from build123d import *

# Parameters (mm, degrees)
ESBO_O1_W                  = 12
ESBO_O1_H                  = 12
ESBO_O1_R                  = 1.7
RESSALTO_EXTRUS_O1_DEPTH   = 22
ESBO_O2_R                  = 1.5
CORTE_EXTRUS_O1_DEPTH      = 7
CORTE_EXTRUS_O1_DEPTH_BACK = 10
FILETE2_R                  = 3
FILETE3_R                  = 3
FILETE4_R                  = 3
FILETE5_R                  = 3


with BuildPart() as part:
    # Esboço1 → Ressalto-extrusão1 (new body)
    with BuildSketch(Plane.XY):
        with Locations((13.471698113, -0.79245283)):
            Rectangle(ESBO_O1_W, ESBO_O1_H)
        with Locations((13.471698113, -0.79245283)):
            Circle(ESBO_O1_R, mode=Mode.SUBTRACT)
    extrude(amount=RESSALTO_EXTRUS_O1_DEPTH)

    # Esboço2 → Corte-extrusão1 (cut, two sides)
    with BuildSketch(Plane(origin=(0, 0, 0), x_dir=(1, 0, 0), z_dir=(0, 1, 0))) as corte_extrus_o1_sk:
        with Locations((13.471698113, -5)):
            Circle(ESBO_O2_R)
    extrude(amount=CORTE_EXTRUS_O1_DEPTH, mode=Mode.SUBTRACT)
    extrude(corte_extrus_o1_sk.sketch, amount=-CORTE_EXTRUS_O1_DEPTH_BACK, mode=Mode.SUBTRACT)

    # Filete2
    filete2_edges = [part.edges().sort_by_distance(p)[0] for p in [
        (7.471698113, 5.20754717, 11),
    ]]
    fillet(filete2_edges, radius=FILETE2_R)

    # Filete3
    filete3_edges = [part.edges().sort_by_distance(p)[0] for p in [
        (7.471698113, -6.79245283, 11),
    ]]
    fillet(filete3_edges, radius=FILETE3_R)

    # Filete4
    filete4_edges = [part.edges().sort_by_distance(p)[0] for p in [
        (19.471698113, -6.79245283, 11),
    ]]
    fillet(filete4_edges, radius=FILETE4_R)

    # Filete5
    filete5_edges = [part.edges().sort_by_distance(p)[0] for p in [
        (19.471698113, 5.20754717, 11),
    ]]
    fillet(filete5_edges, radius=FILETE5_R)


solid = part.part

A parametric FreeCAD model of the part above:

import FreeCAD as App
import Part
import Sketcher


def edges_at(feature, points):
    """Names of the edges that pass closest to the given points."""
    edges = feature.Shape.Edges
    near = lambda p: min(range(len(edges)), key=lambda i: edges[i].distToShape(Part.Vertex(*p))[0])
    return sorted({f"Edge{near(p) + 1}" for p in points})


def add_polygon(sketch, points):
    """Adds a closed chain of lines whose ends are joined by coincident constraints."""
    first, n = sketch.GeometryCount, len(points)
    for a, b in zip(points, points[1:] + points[:1]):
        sketch.addGeometry(Part.LineSegment(App.Vector(*a, 0), App.Vector(*b, 0)), False)
    for i in range(n):
        sketch.addConstraint(Sketcher.Constraint("Coincident", first + i, 2, first + (i + 1) % n, 1))

doc = App.newDocument("Part")
body = doc.addObject("PartDesign::Body", "Body")

sketch1 = body.newObject("Sketcher::SketchObject", "Sketch")
sketch1.AttachmentSupport = (doc.getObject("XY_Plane"), [""])
sketch1.MapMode = "FlatFace"
add_polygon(sketch1, [(7.5, 5.2), (7.5, -6.8), (19.5, -6.8), (19.5, 5.2)])
sketch1.addGeometry(Part.Circle(App.Vector(13.5, -0.8, 0), App.Vector(0, 0, 1), 1.7), False)
sketch1.addConstraint(Sketcher.Constraint("Vertical", 0))
sketch1.addConstraint(Sketcher.Constraint("Horizontal", 1))
sketch1.addConstraint(Sketcher.Constraint("Vertical", 2))
sketch1.addConstraint(Sketcher.Constraint("Horizontal", 3))
sketch1.addConstraint(Sketcher.Constraint("Equal", 3, 0))
sketch1.addConstraint(Sketcher.Constraint("Diameter", 4, 3.4))
sketch1.addConstraint(Sketcher.Constraint("DistanceX", 1, 1, 1, 2, 12.0))
sketch1.addConstraint(Sketcher.Constraint("DistanceX", 0, 2, 4, 3, 6.0))
sketch1.addConstraint(Sketcher.Constraint("DistanceY", 0, 2, 4, 3, 6.0))
sketch1.addConstraint(Sketcher.Constraint("DistanceX", -1, 1, 4, 3, 13.471698))
sketch1.addConstraint(Sketcher.Constraint("DistanceY", 4, 3, -1, 1, 0.792453))
pad1 = body.newObject("PartDesign::Pad", "Pad")
pad1.Profile = sketch1
pad1.Length = 22

sketch2 = body.newObject("Sketcher::SketchObject", "Sketch001")
sketch2.AttachmentSupport = (doc.getObject("XZ_Plane"), [""])
sketch2.MapMode = "FlatFace"
sketch2.addGeometry(Part.Circle(App.Vector(13.5, 5, 0), App.Vector(0, 0, 1), 1.5), False)
sketch2.addConstraint(Sketcher.Constraint("Diameter", 0, 3.0))
sketch2.addConstraint(Sketcher.Constraint("DistanceY", -1, 1, 0, 3, 5.0))
sketch2.addConstraint(Sketcher.Constraint("DistanceX", -1, 1, 0, 3, 13.471698))
pocket1 = body.newObject("PartDesign::Pocket", "Pocket")
pocket1.Profile = sketch2
pocket1.Type = "ThroughAll"
pocket1.Midplane = True
doc.recompute()

fillet = body.newObject("PartDesign::Fillet", "Fillet")
fillet.Base = (pocket1, edges_at(pocket1, [(7.472, 5.208, 11)]))
fillet.Radius = 3
doc.recompute()

fillet2 = body.newObject("PartDesign::Fillet", "Fillet001")
fillet2.Base = (fillet, edges_at(fillet, [(7.472, -6.792, 11)]))
fillet2.Radius = 3
doc.recompute()

fillet3 = body.newObject("PartDesign::Fillet", "Fillet002")
fillet3.Base = (fillet2, edges_at(fillet2, [(19.472, -6.792, 11)]))
fillet3.Radius = 3
doc.recompute()

fillet4 = body.newObject("PartDesign::Fillet", "Fillet003")
fillet4.Base = (fillet3, edges_at(fillet3, [(19.472, 5.208, 11)]))
fillet4.Radius = 3

doc.recompute()
